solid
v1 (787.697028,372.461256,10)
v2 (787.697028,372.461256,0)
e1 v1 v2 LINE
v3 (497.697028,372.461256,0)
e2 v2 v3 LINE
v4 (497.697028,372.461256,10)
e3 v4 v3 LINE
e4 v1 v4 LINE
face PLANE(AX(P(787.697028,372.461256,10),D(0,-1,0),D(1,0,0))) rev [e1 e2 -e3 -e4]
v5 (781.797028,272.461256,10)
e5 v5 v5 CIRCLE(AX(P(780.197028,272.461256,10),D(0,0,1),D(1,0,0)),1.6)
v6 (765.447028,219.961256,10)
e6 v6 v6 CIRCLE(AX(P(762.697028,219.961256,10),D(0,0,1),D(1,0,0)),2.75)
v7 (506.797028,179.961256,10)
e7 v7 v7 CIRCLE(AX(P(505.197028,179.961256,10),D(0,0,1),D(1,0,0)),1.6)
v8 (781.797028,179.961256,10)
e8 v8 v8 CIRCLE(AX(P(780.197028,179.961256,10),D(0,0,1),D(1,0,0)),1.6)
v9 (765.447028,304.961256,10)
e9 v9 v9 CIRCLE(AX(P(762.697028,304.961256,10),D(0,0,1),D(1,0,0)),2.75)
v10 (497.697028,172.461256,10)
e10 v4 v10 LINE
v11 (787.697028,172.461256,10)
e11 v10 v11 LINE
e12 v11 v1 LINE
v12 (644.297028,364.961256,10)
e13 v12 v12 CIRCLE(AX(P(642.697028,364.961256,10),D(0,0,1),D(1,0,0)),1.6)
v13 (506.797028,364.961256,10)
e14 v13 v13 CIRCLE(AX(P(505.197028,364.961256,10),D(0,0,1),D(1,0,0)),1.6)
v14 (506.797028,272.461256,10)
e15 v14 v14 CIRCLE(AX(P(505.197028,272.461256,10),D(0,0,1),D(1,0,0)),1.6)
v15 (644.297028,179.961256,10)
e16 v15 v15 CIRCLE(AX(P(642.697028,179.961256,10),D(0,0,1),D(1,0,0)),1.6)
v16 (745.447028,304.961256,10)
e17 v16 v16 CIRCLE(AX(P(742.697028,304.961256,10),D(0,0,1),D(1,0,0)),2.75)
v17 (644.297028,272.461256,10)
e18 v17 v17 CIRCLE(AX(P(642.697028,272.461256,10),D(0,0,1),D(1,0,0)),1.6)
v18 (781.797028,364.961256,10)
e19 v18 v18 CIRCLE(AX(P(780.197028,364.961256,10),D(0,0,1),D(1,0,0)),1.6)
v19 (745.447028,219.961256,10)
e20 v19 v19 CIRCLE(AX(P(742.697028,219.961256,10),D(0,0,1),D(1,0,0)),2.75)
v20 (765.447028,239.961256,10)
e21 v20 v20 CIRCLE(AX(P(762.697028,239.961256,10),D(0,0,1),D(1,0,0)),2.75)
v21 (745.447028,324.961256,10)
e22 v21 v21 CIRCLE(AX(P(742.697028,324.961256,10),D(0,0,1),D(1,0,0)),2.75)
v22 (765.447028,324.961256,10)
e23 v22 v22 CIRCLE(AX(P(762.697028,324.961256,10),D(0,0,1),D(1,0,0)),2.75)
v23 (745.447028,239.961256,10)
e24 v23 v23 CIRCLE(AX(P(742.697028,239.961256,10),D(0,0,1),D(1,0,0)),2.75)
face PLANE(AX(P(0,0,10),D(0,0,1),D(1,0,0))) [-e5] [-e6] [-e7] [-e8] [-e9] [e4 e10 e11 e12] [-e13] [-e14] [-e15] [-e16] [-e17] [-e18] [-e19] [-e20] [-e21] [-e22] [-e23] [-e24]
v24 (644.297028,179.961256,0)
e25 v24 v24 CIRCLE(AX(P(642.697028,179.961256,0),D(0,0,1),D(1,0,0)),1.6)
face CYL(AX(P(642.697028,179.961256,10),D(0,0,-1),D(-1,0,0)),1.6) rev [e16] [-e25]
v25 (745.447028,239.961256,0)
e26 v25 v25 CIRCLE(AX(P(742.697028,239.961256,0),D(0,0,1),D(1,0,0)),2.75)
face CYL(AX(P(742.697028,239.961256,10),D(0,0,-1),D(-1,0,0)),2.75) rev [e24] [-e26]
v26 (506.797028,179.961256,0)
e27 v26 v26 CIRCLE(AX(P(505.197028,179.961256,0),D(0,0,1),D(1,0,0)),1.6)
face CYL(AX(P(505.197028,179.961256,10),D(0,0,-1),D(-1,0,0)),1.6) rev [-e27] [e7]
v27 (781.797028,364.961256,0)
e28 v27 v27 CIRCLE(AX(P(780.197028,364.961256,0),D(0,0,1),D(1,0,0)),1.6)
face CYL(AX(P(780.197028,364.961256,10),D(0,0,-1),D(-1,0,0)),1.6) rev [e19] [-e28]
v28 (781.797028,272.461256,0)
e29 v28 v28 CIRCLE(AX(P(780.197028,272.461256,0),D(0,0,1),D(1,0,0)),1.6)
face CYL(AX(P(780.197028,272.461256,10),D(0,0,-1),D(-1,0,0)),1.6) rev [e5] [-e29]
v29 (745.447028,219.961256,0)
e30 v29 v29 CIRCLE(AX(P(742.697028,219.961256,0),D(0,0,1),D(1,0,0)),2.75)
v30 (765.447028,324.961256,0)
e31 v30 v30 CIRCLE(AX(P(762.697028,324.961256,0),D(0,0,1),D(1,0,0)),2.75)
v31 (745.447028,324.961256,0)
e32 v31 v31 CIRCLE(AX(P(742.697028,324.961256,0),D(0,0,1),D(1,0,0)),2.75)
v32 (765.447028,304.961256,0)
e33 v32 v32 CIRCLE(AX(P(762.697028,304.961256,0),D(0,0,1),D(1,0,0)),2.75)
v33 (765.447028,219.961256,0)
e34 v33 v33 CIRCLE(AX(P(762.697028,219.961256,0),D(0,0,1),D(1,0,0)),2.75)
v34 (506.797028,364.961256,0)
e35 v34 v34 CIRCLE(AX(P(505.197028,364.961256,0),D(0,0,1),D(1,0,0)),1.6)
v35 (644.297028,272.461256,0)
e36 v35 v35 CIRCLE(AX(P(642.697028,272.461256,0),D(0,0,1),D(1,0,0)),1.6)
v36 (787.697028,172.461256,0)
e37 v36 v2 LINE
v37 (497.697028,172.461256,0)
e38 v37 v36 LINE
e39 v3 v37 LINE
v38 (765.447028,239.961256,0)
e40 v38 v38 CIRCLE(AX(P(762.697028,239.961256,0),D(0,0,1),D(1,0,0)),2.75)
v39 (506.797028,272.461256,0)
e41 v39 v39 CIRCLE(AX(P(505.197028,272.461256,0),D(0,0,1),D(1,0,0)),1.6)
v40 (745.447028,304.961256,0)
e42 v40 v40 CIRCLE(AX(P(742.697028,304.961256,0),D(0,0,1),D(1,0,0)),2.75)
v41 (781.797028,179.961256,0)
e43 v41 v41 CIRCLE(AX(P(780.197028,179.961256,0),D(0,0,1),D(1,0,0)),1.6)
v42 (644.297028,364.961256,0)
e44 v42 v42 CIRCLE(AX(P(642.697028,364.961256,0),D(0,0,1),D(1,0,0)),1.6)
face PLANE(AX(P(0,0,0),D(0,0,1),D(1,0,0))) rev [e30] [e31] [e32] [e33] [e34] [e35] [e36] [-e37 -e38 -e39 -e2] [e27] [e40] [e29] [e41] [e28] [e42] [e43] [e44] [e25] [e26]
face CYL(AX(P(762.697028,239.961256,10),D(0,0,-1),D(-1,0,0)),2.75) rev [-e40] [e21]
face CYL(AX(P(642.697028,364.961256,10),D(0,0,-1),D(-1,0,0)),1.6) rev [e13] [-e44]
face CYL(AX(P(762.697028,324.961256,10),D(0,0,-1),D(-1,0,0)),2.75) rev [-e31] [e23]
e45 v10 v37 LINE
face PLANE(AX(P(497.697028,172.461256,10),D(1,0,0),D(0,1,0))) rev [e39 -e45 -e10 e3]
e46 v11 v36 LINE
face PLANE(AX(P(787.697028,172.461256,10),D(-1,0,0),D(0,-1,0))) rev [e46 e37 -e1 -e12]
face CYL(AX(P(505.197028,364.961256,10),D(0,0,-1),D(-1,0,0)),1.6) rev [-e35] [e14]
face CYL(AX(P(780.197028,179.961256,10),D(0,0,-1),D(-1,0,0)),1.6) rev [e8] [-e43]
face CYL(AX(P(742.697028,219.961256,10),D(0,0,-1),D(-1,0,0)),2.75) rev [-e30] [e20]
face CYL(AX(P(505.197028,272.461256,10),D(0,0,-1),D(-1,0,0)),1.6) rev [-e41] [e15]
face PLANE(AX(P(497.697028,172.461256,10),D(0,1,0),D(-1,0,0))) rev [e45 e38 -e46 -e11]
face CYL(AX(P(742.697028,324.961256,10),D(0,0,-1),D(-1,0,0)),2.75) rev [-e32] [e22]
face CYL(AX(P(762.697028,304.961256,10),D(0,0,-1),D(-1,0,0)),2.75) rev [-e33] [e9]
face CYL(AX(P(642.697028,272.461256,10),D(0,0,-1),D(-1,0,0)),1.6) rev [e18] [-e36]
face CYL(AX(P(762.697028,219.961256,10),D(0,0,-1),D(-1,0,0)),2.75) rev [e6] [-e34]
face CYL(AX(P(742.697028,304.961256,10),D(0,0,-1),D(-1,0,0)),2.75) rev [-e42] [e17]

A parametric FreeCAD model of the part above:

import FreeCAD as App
import Part
import Sketcher
Q = App.Units.Quantity

doc = App.newDocument("Part")
body = doc.addObject("PartDesign::Body", "Body")

sketch1 = body.newObject("Sketcher::SketchObject", "Sketch")
sketch1.AttachmentSupport = (doc.getObject("XY_Plane"), [""])
sketch1.MapMode = "FlatFace"
sketch1.addGeometry([
    Part.LineSegment(App.Vector(497.7, 372.5, 0), App.Vector(497.7, 172.5, 0)),
    Part.LineSegment(App.Vector(497.7, 172.5, 0), App.Vector(787.7, 172.5, 0)),
    Part.LineSegment(App.Vector(787.7, 172.5, 0), App.Vector(787.7, 372.5, 0)),
    Part.LineSegment(App.Vector(787.7, 372.5, 0), App.Vector(497.7, 372.5, 0)),
    Part.Circle(App.Vector(505.2, 180, 0), App.Vector(0, 0, 1), 1.6),
    Part.Circle(App.Vector(642.7, 180, 0), App.Vector(0, 0, 1), 1.6),
    Part.Circle(App.Vector(780.2, 180, 0), App.Vector(0, 0, 1), 1.6),
    Part.Circle(App.Vector(742.7, 220, 0), App.Vector(0, 0, 1), 2.8),
    Part.Circle(App.Vector(762.7, 220, 0), App.Vector(0, 0, 1), 2.8),
    Part.Circle(App.Vector(742.7, 240, 0), App.Vector(0, 0, 1), 2.8),
    Part.Circle(App.Vector(762.7, 240, 0), App.Vector(0, 0, 1), 2.8),
    Part.Circle(App.Vector(505.2, 272.5, 0), App.Vector(0, 0, 1), 1.6),
    Part.Circle(App.Vector(642.7, 272.5, 0), App.Vector(0, 0, 1), 1.6),
    Part.Circle(App.Vector(505.2, 365, 0), App.Vector(0, 0, 1), 1.6),
    Part.Circle(App.Vector(642.7, 365, 0), App.Vector(0, 0, 1), 1.6),
    Part.Circle(App.Vector(780.2, 272.5, 0), App.Vector(0, 0, 1), 1.6),
    Part.Circle(App.Vector(742.7, 305, 0), App.Vector(0, 0, 1), 2.8),
    Part.Circle(App.Vector(762.7, 305, 0), App.Vector(0, 0, 1), 2.8),
    Part.Circle(App.Vector(742.7, 325, 0), App.Vector(0, 0, 1), 2.8),
    Part.Circle(App.Vector(762.7, 325, 0), App.Vector(0, 0, 1), 2.8),
    Part.Circle(App.Vector(780.2, 365, 0), App.Vector(0, 0, 1), 1.6),
], False)
sketch1.addConstraint([
    Sketcher.Constraint("Coincident", 0, 2, 1, 1),
    Sketcher.Constraint("Coincident", 1, 2, 2, 1),
    Sketcher.Constraint("Coincident", 2, 2, 3, 1),
    Sketcher.Constraint("Coincident", 3, 2, 0, 1),
    Sketcher.Constraint("Vertical", 0),
    Sketcher.Constraint("Horizontal", 1),
    Sketcher.Constraint("Vertical", 2),
    Sketcher.Constraint("Horizontal", 3),
    Sketcher.Constraint("Equal", 4, 5),
    Sketcher.Constraint("Equal", 5, 6),
    Sketcher.Constraint("Equal", 7, 8),
    Sketcher.Constraint("Equal", 8, 9),
    Sketcher.Constraint("Equal", 9, 10),
    Sketcher.Constraint("Equal", 6, 11),
    Sketcher.Constraint("Equal", 11, 12),
    Sketcher.Constraint("Equal", 12, 13),
    Sketcher.Constraint("Equal", 13, 14),
    Sketcher.Constraint("Equal", 14, 15),
    Sketcher.Constraint("Equal", 10, 16),
    Sketcher.Constraint("Equal", 16, 17),
    Sketcher.Constraint("Equal", 17, 18),
    Sketcher.Constraint("Equal", 18, 19),
    Sketcher.Constraint("Equal", 15, 20),
    Sketcher.Constraint("Horizontal", 4, 3, 5, 3),
    Sketcher.Constraint("Horizontal", 5, 3, 6, 3),
    Sketcher.Constraint("Horizontal", 7, 3, 8, 3),
    Sketcher.Constraint("Horizontal", 9, 3, 10, 3),
    Sketcher.Constraint("Horizontal", 11, 3, 12, 3),
    Sketcher.Constraint("Horizontal", 13, 3, 14, 3),
    Sketcher.Constraint("Horizontal", 12, 3, 15, 3),
    Sketcher.Constraint("Horizontal", 16, 3, 17, 3),
    Sketcher.Constraint("Horizontal", 18, 3, 19, 3),
    Sketcher.Constraint("Horizontal", 14, 3, 20, 3),
    Sketcher.Constraint("Vertical", 7, 3, 9, 3),
    Sketcher.Constraint("Vertical", 8, 3, 10, 3),
    Sketcher.Constraint("Vertical", 4, 3, 11, 3),
    Sketcher.Constraint("Vertical", 5, 3, 12, 3),
    Sketcher.Constraint("Vertical", 11, 3, 13, 3),
    Sketcher.Constraint("Vertical", 12, 3, 14, 3),
    Sketcher.Constraint("Vertical", 6, 3, 15, 3),
    Sketcher.Constraint("Vertical", 9, 3, 16, 3),
    Sketcher.Constraint("Vertical", 10, 3, 17, 3),
    Sketcher.Constraint("Vertical", 16, 3, 18, 3),
    Sketcher.Constraint("Vertical", 17, 3, 19, 3),
    Sketcher.Constraint("Vertical", 15, 3, 20, 3),
    Sketcher.Constraint("Diameter", 4, Q("3.2 mm")),
    Sketcher.Constraint("Diameter", 7, Q("5.5 mm")),
    Sketcher.Constraint("DistanceX", 1, 1, 1, 2, Q("290 mm")),
    Sketcher.Constraint("DistanceY", 0, 2, 0, 1, Q("200 mm")),
    Sketcher.Constraint("DistanceX", 4, 3, 6, 3, Q("275 mm")),
    Sketcher.Constraint("DistanceY", 6, 3, 7, 3, Q("40 mm")),
    Sketcher.Constraint("DistanceX", 5, 3, 7, 3, Q("100 mm")),
    Sketcher.Constraint("DistanceX", 7, 3, 8, 3, Q("20 mm")),
    Sketcher.Constraint("DistanceY", 7, 3, 9, 3, Q("20 mm")),
    Sketcher.Constraint("DistanceY", 4, 3, 13, 3, Q("185 mm")),
    Sketcher.Constraint("DistanceY", 9, 3, 16, 3, Q("65 mm")),
    Sketcher.Constraint("DistanceY", 16, 3, 18, 3, Q("20 mm")),
    Sketcher.Constraint("DistanceY", 0, 2, 11, 3, Q("100 mm")),
    Sketcher.Constraint("DistanceX", 0, 2, 5, 3, Q("145 mm")),
    Sketcher.Constraint("DistanceX", 4, 3, 5, 3, Q("137.5 mm")),
    Sketcher.Constraint("DistanceY", 4, 3, 11, 3, Q("92.5 mm")),
    Sketcher.Constraint("DistanceX", -1, 1, 4, 3, Q("505.197028 mm")),
    Sketcher.Constraint("DistanceY", -1, 1, 4, 3, Q("179.961256 mm")),
])
pad1 = body.newObject("PartDesign::Pad", "Pad")
pad1.Profile = sketch1
pad1.Length = 10

doc.recompute()
